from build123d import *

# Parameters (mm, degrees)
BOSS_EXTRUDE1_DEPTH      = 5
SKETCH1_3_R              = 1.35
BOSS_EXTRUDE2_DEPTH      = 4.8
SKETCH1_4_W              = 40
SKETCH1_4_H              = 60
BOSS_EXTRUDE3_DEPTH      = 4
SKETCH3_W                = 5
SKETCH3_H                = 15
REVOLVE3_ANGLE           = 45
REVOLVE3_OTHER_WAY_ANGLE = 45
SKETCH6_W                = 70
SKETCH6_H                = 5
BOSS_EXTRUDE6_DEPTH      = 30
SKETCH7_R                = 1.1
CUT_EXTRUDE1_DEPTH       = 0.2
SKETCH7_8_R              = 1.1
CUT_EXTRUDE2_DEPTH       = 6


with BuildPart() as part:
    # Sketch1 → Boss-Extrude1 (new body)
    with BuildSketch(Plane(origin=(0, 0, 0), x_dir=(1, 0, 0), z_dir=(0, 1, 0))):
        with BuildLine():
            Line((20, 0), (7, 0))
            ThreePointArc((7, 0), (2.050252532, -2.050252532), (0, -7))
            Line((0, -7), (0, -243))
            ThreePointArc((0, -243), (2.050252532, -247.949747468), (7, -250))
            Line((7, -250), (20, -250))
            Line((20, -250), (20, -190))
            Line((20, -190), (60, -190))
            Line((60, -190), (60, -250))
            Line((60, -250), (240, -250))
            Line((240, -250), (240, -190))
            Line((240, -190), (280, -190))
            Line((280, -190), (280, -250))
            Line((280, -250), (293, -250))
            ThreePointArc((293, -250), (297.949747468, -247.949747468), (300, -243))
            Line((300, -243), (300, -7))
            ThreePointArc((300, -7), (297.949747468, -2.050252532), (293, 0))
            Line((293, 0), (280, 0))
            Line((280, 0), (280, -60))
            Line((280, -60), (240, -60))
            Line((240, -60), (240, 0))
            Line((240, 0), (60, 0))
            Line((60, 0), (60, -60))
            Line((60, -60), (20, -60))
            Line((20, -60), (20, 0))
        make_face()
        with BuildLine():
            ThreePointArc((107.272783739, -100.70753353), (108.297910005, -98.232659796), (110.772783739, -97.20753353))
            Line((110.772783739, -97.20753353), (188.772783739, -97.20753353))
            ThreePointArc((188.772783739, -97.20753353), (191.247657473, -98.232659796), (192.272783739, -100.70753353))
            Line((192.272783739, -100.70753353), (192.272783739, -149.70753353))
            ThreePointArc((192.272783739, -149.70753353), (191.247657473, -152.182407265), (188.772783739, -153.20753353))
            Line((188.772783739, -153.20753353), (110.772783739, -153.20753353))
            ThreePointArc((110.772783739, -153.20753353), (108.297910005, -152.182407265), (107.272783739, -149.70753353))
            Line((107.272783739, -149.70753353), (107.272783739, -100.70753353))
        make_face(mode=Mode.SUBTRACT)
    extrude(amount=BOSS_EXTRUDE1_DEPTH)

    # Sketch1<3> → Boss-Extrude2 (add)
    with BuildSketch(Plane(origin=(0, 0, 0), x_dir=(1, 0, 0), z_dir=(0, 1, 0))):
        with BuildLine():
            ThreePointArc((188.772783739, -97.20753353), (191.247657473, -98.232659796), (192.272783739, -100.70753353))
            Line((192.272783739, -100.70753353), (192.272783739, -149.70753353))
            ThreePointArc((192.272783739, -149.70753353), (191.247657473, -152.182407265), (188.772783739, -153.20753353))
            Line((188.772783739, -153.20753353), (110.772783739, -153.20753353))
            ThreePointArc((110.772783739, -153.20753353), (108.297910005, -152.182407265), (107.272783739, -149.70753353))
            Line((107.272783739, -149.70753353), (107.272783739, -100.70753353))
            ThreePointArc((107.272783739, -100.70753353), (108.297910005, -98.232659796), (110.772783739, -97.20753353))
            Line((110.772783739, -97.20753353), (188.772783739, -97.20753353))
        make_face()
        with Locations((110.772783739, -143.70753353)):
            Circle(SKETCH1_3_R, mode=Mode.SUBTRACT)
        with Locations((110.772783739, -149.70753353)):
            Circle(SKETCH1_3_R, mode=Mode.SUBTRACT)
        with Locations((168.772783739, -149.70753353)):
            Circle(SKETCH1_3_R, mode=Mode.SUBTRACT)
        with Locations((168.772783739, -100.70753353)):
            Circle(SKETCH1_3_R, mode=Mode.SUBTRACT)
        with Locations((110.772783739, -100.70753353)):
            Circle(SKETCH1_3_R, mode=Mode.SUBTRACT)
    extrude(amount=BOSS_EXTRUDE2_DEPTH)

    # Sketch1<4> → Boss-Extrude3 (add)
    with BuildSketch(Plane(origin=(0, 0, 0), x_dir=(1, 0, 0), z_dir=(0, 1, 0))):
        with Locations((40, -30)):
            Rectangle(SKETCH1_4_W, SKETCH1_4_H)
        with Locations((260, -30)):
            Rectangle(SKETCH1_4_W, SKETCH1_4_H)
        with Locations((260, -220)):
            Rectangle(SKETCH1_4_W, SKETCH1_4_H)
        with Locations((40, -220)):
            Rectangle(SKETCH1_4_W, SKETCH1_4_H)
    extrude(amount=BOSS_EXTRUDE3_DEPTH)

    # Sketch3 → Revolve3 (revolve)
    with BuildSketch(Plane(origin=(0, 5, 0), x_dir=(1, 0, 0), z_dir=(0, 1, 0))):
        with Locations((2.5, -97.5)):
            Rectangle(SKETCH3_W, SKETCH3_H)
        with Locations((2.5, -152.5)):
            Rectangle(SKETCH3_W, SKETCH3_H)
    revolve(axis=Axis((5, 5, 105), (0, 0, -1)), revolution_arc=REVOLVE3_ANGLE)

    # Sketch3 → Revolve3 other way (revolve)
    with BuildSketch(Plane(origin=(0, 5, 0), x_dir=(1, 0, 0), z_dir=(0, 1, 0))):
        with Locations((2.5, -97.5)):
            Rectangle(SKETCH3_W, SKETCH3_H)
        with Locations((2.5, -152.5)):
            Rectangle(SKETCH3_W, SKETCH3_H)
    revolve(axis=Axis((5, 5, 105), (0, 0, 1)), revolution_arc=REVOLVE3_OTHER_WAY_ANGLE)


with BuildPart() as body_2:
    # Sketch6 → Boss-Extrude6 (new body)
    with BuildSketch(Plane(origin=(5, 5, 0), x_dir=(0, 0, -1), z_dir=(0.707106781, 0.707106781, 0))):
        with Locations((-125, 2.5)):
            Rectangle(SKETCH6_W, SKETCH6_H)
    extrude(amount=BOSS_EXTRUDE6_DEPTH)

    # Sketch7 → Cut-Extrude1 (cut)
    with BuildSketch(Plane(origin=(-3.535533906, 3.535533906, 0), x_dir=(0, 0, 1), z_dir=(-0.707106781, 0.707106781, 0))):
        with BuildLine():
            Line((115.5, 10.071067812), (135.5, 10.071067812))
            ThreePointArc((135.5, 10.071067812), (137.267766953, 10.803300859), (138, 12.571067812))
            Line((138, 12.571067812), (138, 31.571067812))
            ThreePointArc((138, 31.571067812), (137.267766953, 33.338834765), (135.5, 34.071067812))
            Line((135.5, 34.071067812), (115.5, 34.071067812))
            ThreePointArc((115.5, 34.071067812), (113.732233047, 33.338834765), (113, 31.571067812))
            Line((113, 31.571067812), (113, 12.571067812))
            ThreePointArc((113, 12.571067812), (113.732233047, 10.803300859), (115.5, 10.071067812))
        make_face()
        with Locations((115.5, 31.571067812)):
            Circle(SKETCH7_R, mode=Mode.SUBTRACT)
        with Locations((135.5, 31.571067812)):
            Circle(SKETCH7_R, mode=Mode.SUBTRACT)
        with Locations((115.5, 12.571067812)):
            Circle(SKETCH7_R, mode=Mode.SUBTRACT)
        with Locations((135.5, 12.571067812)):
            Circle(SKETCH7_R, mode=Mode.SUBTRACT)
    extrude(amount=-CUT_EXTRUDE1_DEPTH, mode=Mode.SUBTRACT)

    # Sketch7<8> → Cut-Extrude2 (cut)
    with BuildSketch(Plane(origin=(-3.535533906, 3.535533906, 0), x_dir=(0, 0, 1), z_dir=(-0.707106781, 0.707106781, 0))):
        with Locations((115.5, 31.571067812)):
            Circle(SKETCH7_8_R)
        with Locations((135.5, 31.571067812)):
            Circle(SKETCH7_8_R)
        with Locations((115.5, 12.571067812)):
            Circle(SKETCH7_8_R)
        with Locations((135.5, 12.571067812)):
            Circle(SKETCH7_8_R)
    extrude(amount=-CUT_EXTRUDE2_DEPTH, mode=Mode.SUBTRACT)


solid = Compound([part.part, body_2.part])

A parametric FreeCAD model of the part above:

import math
import FreeCAD as App
import Part
import Sketcher

V = App.Vector
Q = App.Units.Quantity

doc = App.newDocument("Part")
body = doc.addObject("PartDesign::Body", "Body")

sketch1 = body.newObject("Sketcher::SketchObject", "Sketch")
sketch1.AttachmentSupport = (doc.getObject("XZ_Plane"), [""])
sketch1.MapMode = "FlatFace"
sketch1.addGeometry([
    Part.LineSegment(V(20, 0, 0), V(7, 0, 0)),
    Part.ArcOfCircle(Part.Circle(V(7, 7, 0), V(0, 0, 1), 7), math.radians(-180), math.radians(-90)),
    Part.LineSegment(V(0, 7, 0), V(0, 243, 0)),
    Part.ArcOfCircle(Part.Circle(V(7, 243, 0), V(0, 0, 1), 7), math.radians(90), math.radians(180)),
    Part.LineSegment(V(7, 250, 0), V(20, 250, 0)),
    Part.LineSegment(V(20, 250, 0), V(20, 190, 0)),
    Part.LineSegment(V(20, 190, 0), V(60, 190, 0)),
    Part.LineSegment(V(60, 190, 0), V(60, 250, 0)),
    Part.LineSegment(V(60, 250, 0), V(240, 250, 0)),
    Part.LineSegment(V(240, 250, 0), V(240, 190, 0)),
    Part.LineSegment(V(240, 190, 0), V(280, 190, 0)),
    Part.LineSegment(V(280, 190, 0), V(280, 250, 0)),
    Part.LineSegment(V(280, 250, 0), V(293, 250, 0)),
    Part.ArcOfCircle(Part.Circle(V(293, 243, 0), V(0, 0, 1), 7), math.radians(0), math.radians(90)),
    Part.LineSegment(V(300, 243, 0), V(300, 7, 0)),
    Part.ArcOfCircle(Part.Circle(V(293, 7, 0), V(0, 0, 1), 7), math.radians(-90), math.radians(0)),
    Part.LineSegment(V(293, 0, 0), V(280, 0, 0)),
    Part.LineSegment(V(280, 0, 0), V(280, 60, 0)),
    Part.LineSegment(V(280, 60, 0), V(240, 60, 0)),
    Part.LineSegment(V(240, 60, 0), V(240, 0, 0)),
    Part.LineSegment(V(240, 0, 0), V(60, 0, 0)),
    Part.LineSegment(V(60, 0, 0), V(60, 60, 0)),
    Part.LineSegment(V(60, 60, 0), V(20, 60, 0)),
    Part.LineSegment(V(20, 60, 0), V(20, 0, 0)),
    Part.LineSegment(V(107.3, 149.7, 0), V(107.3, 100.7, 0)),
    Part.ArcOfCircle(Part.Circle(V(110.8, 100.7, 0), V(0, 0, 1), 3.5), math.radians(-180), math.radians(-90)),
    Part.LineSegment(V(110.8, 97.2, 0), V(188.8, 97.2, 0)),
    Part.ArcOfCircle(Part.Circle(V(188.8, 100.7, 0), V(0, 0, 1), 3.5), math.radians(-90), math.radians(0)),
    Part.LineSegment(V(192.3, 100.7, 0), V(192.3, 149.7, 0)),
    Part.ArcOfCircle(Part.Circle(V(188.8, 149.7, 0), V(0, 0, 1), 3.5), math.radians(0), math.radians(90)),
    Part.LineSegment(V(188.8, 153.2, 0), V(110.8, 153.2, 0)),
    Part.ArcOfCircle(Part.Circle(V(110.8, 149.7, 0), V(0, 0, 1), 3.5), math.radians(90), math.radians(180)),
], False)
sketch1.addConstraint([
    Sketcher.Constraint("Tangent", 0, 2, 1, 2),
    Sketcher.Constraint("Tangent", 1, 1, 2, 1),
    Sketcher.Constraint("Tangent", 2, 2, 3, 2),
    Sketcher.Constraint("Tangent", 3, 1, 4, 1),
    Sketcher.Constraint("Coincident", 4, 2, 5, 1),
    Sketcher.Constraint("Coincident", 5, 2, 6, 1),
    Sketcher.Constraint("Coincident", 6, 2, 7, 1),
    Sketcher.Constraint("Coincident", 7, 2, 8, 1),
    Sketcher.Constraint("Coincident", 8, 2, 9, 1),
    Sketcher.Constraint("Coincident", 9, 2, 10, 1),
    Sketcher.Constraint("Coincident", 10, 2, 11, 1),
    Sketcher.Constraint("Coincident", 11, 2, 12, 1),
    Sketcher.Constraint("Tangent", 12, 2, 13, 2),
    Sketcher.Constraint("Tangent", 13, 1, 14, 1),
    Sketcher.Constraint("Tangent", 14, 2, 15, 2),
    Sketcher.Constraint("Tangent", 15, 1, 16, 1),
    Sketcher.Constraint("Coincident", 16, 2, 17, 1),
    Sketcher.Constraint("Coincident", 17, 2, 18, 1),
    Sketcher.Constraint("Coincident", 18, 2, 19, 1),
    Sketcher.Constraint("Coincident", 19, 2, 20, 1),
    Sketcher.Constraint("Coincident", 20, 2, 21, 1),
    Sketcher.Constraint("Coincident", 21, 2, 22, 1),
    Sketcher.Constraint("Coincident", 22, 2, 23, 1),
    Sketcher.Constraint("Coincident", 23, 2, 0, 1),
    Sketcher.Constraint("Tangent", 24, 2, 25, 1),
    Sketcher.Constraint("Tangent", 25, 2, 26, 1),
    Sketcher.Constraint("Tangent", 26, 2, 27, 1),
    Sketcher.Constraint("Tangent", 27, 2, 28, 1),
    Sketcher.Constraint("Tangent", 28, 2, 29, 1),
    Sketcher.Constraint("Tangent", 29, 2, 30, 1),
    Sketcher.Constraint("Tangent", 30, 2, 31, 1),
    Sketcher.Constraint("Tangent", 31, 2, 24, 1),
    Sketcher.Constraint("Horizontal", 0),
    Sketcher.Constraint("Vertical", 2),
    Sketcher.Constraint("Horizontal", 4),
    Sketcher.Constraint("Vertical", 5),
    Sketcher.Constraint("Horizontal", 6),
    Sketcher.Constraint("Vertical", 7),
    Sketcher.Constraint("Horizontal", 8),
    Sketcher.Constraint("Vertical", 9),
    Sketcher.Constraint("Horizontal", 10),
    Sketcher.Constraint("Vertical", 11),
    Sketcher.Constraint("Horizontal", 12),
    Sketcher.Constraint("Vertical", 14),
    Sketcher.Constraint("Horizontal", 16),
    Sketcher.Constraint("Vertical", 17),
    Sketcher.Constraint("Horizontal", 18),
    Sketcher.Constraint("Vertical", 19),
    Sketcher.Constraint("Horizontal", 20),
    Sketcher.Constraint("Vertical", 21),
    Sketcher.Constraint("Horizontal", 22),
    Sketcher.Constraint("Vertical", 23),
    Sketcher.Constraint("Vertical", 24),
    Sketcher.Constraint("Horizontal", 26),
    Sketcher.Constraint("Vertical", 28),
    Sketcher.Constraint("Horizontal", 30),
    Sketcher.Constraint("Equal", 1, 3),
    Sketcher.Constraint("Equal", 3, 13),
    Sketcher.Constraint("Equal", 13, 15),
    Sketcher.Constraint("Equal", 25, 27),
    Sketcher.Constraint("Equal", 27, 29),
    Sketcher.Constraint("Equal", 29, 31),
    Sketcher.Constraint("PointOnObject", 0, 2, -1),
    Sketcher.Constraint("PointOnObject", 1, 1, -2),
    Sketcher.Constraint("PointOnObject", 15, 1, -1),
    Sketcher.Constraint("PointOnObject", 19, 2, -1),
    Sketcher.Constraint("Horizontal", 3, 3, 13, 3),
    Sketcher.Constraint("Horizontal", 4, 2, 7, 2),
    Sketcher.Constraint("Horizontal", 6, 2, 9, 2),
    Sketcher.Constraint("Horizontal", 18, 2, 21, 2),
    Sketcher.Constraint("Vertical", 11, 2, 16, 2),
    Sketcher.Constraint("Vertical", 9, 2, 18, 2),
    Sketcher.Constraint("Vertical", 7, 2, 20, 2),
    Sketcher.Constraint("Vertical", 5, 2, 22, 2),
    Sketcher.Constraint("Equal", 6, 10),
    Sketcher.Constraint("Equal", 4, 12),
    Sketcher.Constraint("Equal", 11, 17),
    Sketcher.Constraint("Radius", 1, Q("7 mm")),
    Sketcher.Constraint("Radius", 25, Q("3.5 mm")),
    Sketcher.Constraint("DistanceX", 0, 2, 0, 1, Q("13 mm")),
    Sketcher.Constraint("DistanceX", 6, 1, 6, 2, Q("40 mm")),
    Sketcher.Constraint("DistanceX", 8, 1, 8, 2, Q("180 mm")),
    Sketcher.Constraint("DistanceX", 26, 1, 26, 2, Q("78 mm")),
    Sketcher.Constraint("DistanceY", 2, 1, 2, 2, Q("236 mm")),
    Sketcher.Constraint("DistanceY", 5, 2, 5, 1, Q("60 mm")),
    Sketcher.Constraint("DistanceY", 24, 2, 24, 1, Q("49 mm")),
    Sketcher.Constraint("DistanceX", -1, 1, 25, 3, Q("110.772784 mm")),
    Sketcher.Constraint("DistanceY", -1, 1, 25, 3, Q("100.707534 mm")),
])
pad1 = body.newObject("PartDesign::Pad", "Pad")
pad1.Profile = sketch1
pad1.Length = 5
pad1.Reversed = True

sketch2 = body.newObject("Sketcher::SketchObject", "Sketch001")
sketch2.AttachmentSupport = (doc.getObject("XZ_Plane"), [""])
sketch2.MapMode = "FlatFace"
sketch2.addGeometry([
    Part.ArcOfCircle(Part.Circle(V(188.8, 100.7, 0), V(0, 0, 1), 3.5), math.radians(-90), math.radians(0)),
    Part.LineSegment(V(188.8, 97.2, 0), V(110.8, 97.2, 0)),
    Part.ArcOfCircle(Part.Circle(V(110.8, 100.7, 0), V(0, 0, 1), 3.5), math.radians(-180), math.radians(-90)),
    Part.LineSegment(V(107.3, 100.7, 0), V(107.3, 149.7, 0)),
    Part.ArcOfCircle(Part.Circle(V(110.8, 149.7, 0), V(0, 0, 1), 3.5), math.radians(90), math.radians(180)),
    Part.LineSegment(V(110.8, 153.2, 0), V(188.8, 153.2, 0)),
    Part.ArcOfCircle(Part.Circle(V(188.8, 149.7, 0), V(0, 0, 1), 3.5), math.radians(0), math.radians(90)),
    Part.LineSegment(V(192.3, 149.7, 0), V(192.3, 100.7, 0)),
    Part.Circle(V(168.8, 149.7, 0), V(0, 0, 1), 1.4),
    Part.Circle(V(110.8, 149.7, 0), V(0, 0, 1), 1.4),
    Part.Circle(V(110.8, 143.7, 0), V(0, 0, 1), 1.4),
    Part.Circle(V(168.8, 100.7, 0), V(0, 0, 1), 1.4),
    Part.Circle(V(110.8, 100.7, 0), V(0, 0, 1), 1.4),
], False)
sketch2.addConstraint([
    Sketcher.Constraint("Tangent", 0, 1, 1, 1),
    Sketcher.Constraint("Tangent", 1, 2, 2, 2),
    Sketcher.Constraint("Tangent", 2, 1, 3, 1),
    Sketcher.Constraint("Tangent", 3, 2, 4, 2),
    Sketcher.Constraint("Tangent", 4, 1, 5, 1),
    Sketcher.Constraint("Tangent", 5, 2, 6, 2),
    Sketcher.Constraint("Tangent", 6, 1, 7, 1),
    Sketcher.Constraint("Tangent", 7, 2, 0, 2),
    Sketcher.Constraint("Horizontal", 1),
    Sketcher.Constraint("Vertical", 3),
    Sketcher.Constraint("Horizontal", 5),
    Sketcher.Constraint("Vertical", 7),
    Sketcher.Constraint("Coincident", 9, 3, 4, 3),
    Sketcher.Constraint("Coincident", 12, 3, 2, 3),
    Sketcher.Constraint("Equal", 0, 2),
    Sketcher.Constraint("Equal", 2, 4),
    Sketcher.Constraint("Equal", 4, 6),
    Sketcher.Constraint("Equal", 8, 9),
    Sketcher.Constraint("Equal", 9, 10),
    Sketcher.Constraint("Equal", 10, 11),
    Sketcher.Constraint("Equal", 11, 12),
    Sketcher.Constraint("Horizontal", 6, 3, 8, 3),
    Sketcher.Constraint("Horizontal", 2, 3, 11, 3),
    Sketcher.Constraint("Vertical", 9, 3, 10, 3),
    Sketcher.Constraint("Vertical", 8, 3, 11, 3),
    Sketcher.Constraint("Diameter", 8, Q("2.7 mm")),
    Sketcher.Constraint("Radius", 0, Q("3.5 mm")),
    Sketcher.Constraint("DistanceX", 1, 2, 1, 1, Q("78 mm")),
    Sketcher.Constraint("DistanceY", 3, 1, 3, 2, Q("49 mm")),
    Sketcher.Constraint("DistanceX", 8, 3, 6, 3, Q("20 mm")),
    Sketcher.Constraint("DistanceY", 10, 3, 9, 3, Q("6 mm")),
    Sketcher.Constraint("DistanceX", -1, 1, 0, 3, Q("188.772784 mm")),
    Sketcher.Constraint("DistanceY", -1, 1, 0, 3, Q("100.707534 mm")),
])
pad2 = body.newObject("PartDesign::Pad", "Pad001")
pad2.Profile = sketch2
pad2.Length = 4.8
pad2.Reversed = True

sketch3 = body.newObject("Sketcher::SketchObject", "Sketch002")
sketch3.AttachmentSupport = (doc.getObject("XZ_Plane"), [""])
sketch3.MapMode = "FlatFace"
sketch3.addGeometry([
    Part.LineSegment(V(20, 0, 0), V(20, 60, 0)),
    Part.LineSegment(V(20, 60, 0), V(60, 60, 0)),
    Part.LineSegment(V(60, 60, 0), V(60, 0, 0)),
    Part.LineSegment(V(60, 0, 0), V(20, 0, 0)),
    Part.LineSegment(V(240, 0, 0), V(240, 60, 0)),
    Part.LineSegment(V(240, 60, 0), V(280, 60, 0)),
    Part.LineSegment(V(280, 60, 0), V(280, 0, 0)),
    Part.LineSegment(V(280, 0, 0), V(240, 0, 0)),
    Part.LineSegment(V(240, 190, 0), V(240, 250, 0)),
    Part.LineSegment(V(240, 250, 0), V(280, 250, 0)),
    Part.LineSegment(V(280, 250, 0), V(280, 190, 0)),
    Part.LineSegment(V(280, 190, 0), V(240, 190, 0)),
    Part.LineSegment(V(20, 190, 0), V(20, 250, 0)),
    Part.LineSegment(V(20, 250, 0), V(60, 250, 0)),
    Part.LineSegment(V(60, 250, 0), V(60, 190, 0)),
    Part.LineSegment(V(60, 190, 0), V(20, 190, 0)),
], False)
sketch3.addConstraint([
    Sketcher.Constraint("Coincident", 0, 2, 1, 1),
    Sketcher.Constraint("Coincident", 1, 2, 2, 1),
    Sketcher.Constraint("Coincident", 2, 2, 3, 1),
    Sketcher.Constraint("Coincident", 3, 2, 0, 1),
    Sketcher.Constraint("Coincident", 4, 2, 5, 1),
    Sketcher.Constraint("Coincident", 5, 2, 6, 1),
    Sketcher.Constraint("Coincident", 6, 2, 7, 1),
    Sketcher.Constraint("Coincident", 7, 2, 4, 1),
    Sketcher.Constraint("Coincident", 8, 2, 9, 1),
    Sketcher.Constraint("Coincident", 9, 2, 10, 1),
    Sketcher.Constraint("Coincident", 10, 2, 11, 1),
    Sketcher.Constraint("Coincident", 11, 2, 8, 1),
    Sketcher.Constraint("Coincident", 12, 2, 13, 1),
    Sketcher.Constraint("Coincident", 13, 2, 14, 1),
    Sketcher.Constraint("Coincident", 14, 2, 15, 1),
    Sketcher.Constraint("Coincident", 15, 2, 12, 1),
    Sketcher.Constraint("Vertical", 0),
    Sketcher.Constraint("Horizontal", 1),
    Sketcher.Constraint("Vertical", 2),
    Sketcher.Constraint("Horizontal", 3),
    Sketcher.Constraint("Vertical", 4),
    Sketcher.Constraint("Horizontal", 5),
    Sketcher.Constraint("Vertical", 6),
    Sketcher.Constraint("Horizontal", 7),
    Sketcher.Constraint("Vertical", 8),
    Sketcher.Constraint("Horizontal", 9),
    Sketcher.Constraint("Vertical", 10),
    Sketcher.Constraint("Horizontal", 11),
    Sketcher.Constraint("Vertical", 12),
    Sketcher.Constraint("Horizontal", 13),
    Sketcher.Constraint("Vertical", 14),
    Sketcher.Constraint("Horizontal", 15),
    Sketcher.Constraint("PointOnObject", 2, 2, -1),
    Sketcher.Constraint("PointOnObject", 6, 2, -1),
    Sketcher.Constraint("Horizontal", 1, 2, 4, 2),
    Sketcher.Constraint("Horizontal", 9, 2, 12, 2),
    Sketcher.Constraint("Horizontal", 11, 2, 14, 2),
    Sketcher.Constraint("Vertical", 7, 2, 8, 2),
    Sketcher.Constraint("Vertical", 6, 2, 9, 2),
    Sketcher.Constraint("Vertical", 3, 2, 12, 2),
    Sketcher.Constraint("Vertical", 2, 2, 13, 2),
    Sketcher.Constraint("Equal", 3, 5),
    Sketcher.Constraint("Equal", 6, 8),
    Sketcher.Constraint("DistanceX", 1, 1, 1, 2, Q("40 mm")),
    Sketcher.Constraint("DistanceY", 0, 1, 0, 2, Q("60 mm")),
    Sketcher.Constraint("DistanceX", -1, 1, 0, 2, Q("20 mm")),
    Sketcher.Constraint("DistanceX", -1, 1, 4, 2, Q("240 mm")),
    Sketcher.Constraint("DistanceY", -1, 1, 8, 2, Q("250 mm")),
])
pad3 = body.newObject("PartDesign::Pad", "Pad002")
pad3.Profile = sketch3
pad3.Length = 4
pad3.Reversed = True

sketch4 = body.newObject("Sketcher::SketchObject", "Sketch003")
sketch4.AttachmentSupport = (doc.getObject("XZ_Plane"), [""])
sketch4.MapMode = "FlatFace"
sketch4.AttachmentOffset = App.Placement(V(0, 0, -5), App.Rotation())
sketch4.addGeometry([
    Part.LineSegment(V(0, 90, 0), V(0, 105, 0)),
    Part.LineSegment(V(0, 105, 0), V(5, 105, 0)),
    Part.LineSegment(V(5, 105, 0), V(5, 90, 0)),
    Part.LineSegment(V(5, 90, 0), V(0, 90, 0)),
    Part.LineSegment(V(0, 145, 0), V(0, 160, 0)),
    Part.LineSegment(V(0, 160, 0), V(5, 160, 0)),
    Part.LineSegment(V(5, 160, 0), V(5, 145, 0)),
    Part.LineSegment(V(5, 145, 0), V(0, 145, 0)),
], False)
sketch4.addGeometry(Part.LineSegment(V(5, 160, 0), V(5, 90, 0)), True)
sketch4.addConstraint([
    Sketcher.Constraint("Coincident", 0, 2, 1, 1),
    Sketcher.Constraint("Coincident", 1, 2, 2, 1),
    Sketcher.Constraint("Coincident", 2, 2, 3, 1),
    Sketcher.Constraint("Coincident", 3, 2, 0, 1),
    Sketcher.Constraint("Coincident", 4, 2, 5, 1),
    Sketcher.Constraint("Coincident", 5, 2, 6, 1),
    Sketcher.Constraint("Coincident", 6, 2, 7, 1),
    Sketcher.Constraint("Coincident", 7, 2, 4, 1),
    Sketcher.Constraint("Vertical", 0),
    Sketcher.Constraint("Horizontal", 1),
    Sketcher.Constraint("Vertical", 2),
    Sketcher.Constraint("Horizontal", 3),
    Sketcher.Constraint("Vertical", 4),
    Sketcher.Constraint("Horizontal", 5),
    Sketcher.Constraint("Vertical", 6),
    Sketcher.Constraint("Horizontal", 7),
    Sketcher.Constraint("Vertical", 8),
    Sketcher.Constraint("Coincident", 8, 1, 5, 2),
    Sketcher.Constraint("Coincident", 8, 2, 2, 2),
    Sketcher.Constraint("PointOnObject", 0, 2, -2),
    Sketcher.Constraint("PointOnObject", 4, 2, -2),
    Sketcher.Constraint("Equal", 2, 4),
    Sketcher.Constraint("DistanceX", 1, 1, 1, 2, Q("5 mm")),
    Sketcher.Constraint("DistanceY", 0, 1, 0, 2, Q("15 mm")),
    Sketcher.Constraint("DistanceY", 8, 2, 8, 1, Q("70 mm")),
    Sketcher.Constraint("DistanceY", -1, 1, 0, 2, Q("105 mm")),
])
revolution = body.newObject("PartDesign::Revolution", "Revolution")
revolution.Profile = sketch4
revolution.ReferenceAxis = (sketch4, ["Axis0"])
revolution.Angle = 45

sketch5 = body.newObject("Sketcher::SketchObject", "Sketch004")
sketch5.AttachmentSupport = (doc.getObject("XZ_Plane"), [""])
sketch5.MapMode = "FlatFace"
sketch5.AttachmentOffset = App.Placement(V(0, 0, -5), App.Rotation())
sketch5.addGeometry([
    Part.LineSegment(V(0, 90, 0), V(0, 105, 0)),
    Part.LineSegment(V(0, 105, 0), V(5, 105, 0)),
    Part.LineSegment(V(5, 105, 0), V(5, 90, 0)),
    Part.LineSegment(V(5, 90, 0), V(0, 90, 0)),
    Part.LineSegment(V(0, 145, 0), V(0, 160, 0)),
    Part.LineSegment(V(0, 160, 0), V(5, 160, 0)),
    Part.LineSegment(V(5, 160, 0), V(5, 145, 0)),
    Part.LineSegment(V(5, 145, 0), V(0, 145, 0)),
], False)
sketch5.addGeometry(Part.LineSegment(V(5, 90, 0), V(5, 160, 0)), True)
sketch5.addConstraint([
    Sketcher.Constraint("Coincident", 0, 2, 1, 1),
    Sketcher.Constraint("Coincident", 1, 2, 2, 1),
    Sketcher.Constraint("Coincident", 2, 2, 3, 1),
    Sketcher.Constraint("Coincident", 3, 2, 0, 1),
    Sketcher.Constraint("Coincident", 4, 2, 5, 1),
    Sketcher.Constraint("Coincident", 5, 2, 6, 1),
    Sketcher.Constraint("Coincident", 6, 2, 7, 1),
    Sketcher.Constraint("Coincident", 7, 2, 4, 1),
    Sketcher.Constraint("Vertical", 0),
    Sketcher.Constraint("Horizontal", 1),
    Sketcher.Constraint("Vertical", 2),
    Sketcher.Constraint("Horizontal", 3),
    Sketcher.Constraint("Vertical", 4),
    Sketcher.Constraint("Horizontal", 5),
    Sketcher.Constraint("Vertical", 6),
    Sketcher.Constraint("Horizontal", 7),
    Sketcher.Constraint("Vertical", 8),
    Sketcher.Constraint("Coincident", 8, 1, 2, 2),
    Sketcher.Constraint("Coincident", 8, 2, 5, 2),
    Sketcher.Constraint("PointOnObject", 0, 2, -2),
    Sketcher.Constraint("PointOnObject", 4, 2, -2),
    Sketcher.Constraint("Equal", 2, 4),
    Sketcher.Constraint("DistanceX", 1, 1, 1, 2, Q("5 mm")),
    Sketcher.Constraint("DistanceY", 0, 1, 0, 2, Q("15 mm")),
    Sketcher.Constraint("DistanceY", 8, 1, 8, 2, Q("70 mm")),
    Sketcher.Constraint("DistanceY", -1, 1, 0, 2, Q("105 mm")),
])
revolution2 = body.newObject("PartDesign::Revolution", "Revolution001")
revolution2.Profile = sketch5
revolution2.ReferenceAxis = (sketch5, ["Axis0"])
revolution2.Angle = 45
body2 = doc.addObject("PartDesign::Body", "Body001")

sketch6 = body2.newObject("Sketcher::SketchObject", "Sketch005")
sketch6.Placement = App.Placement(V(5, 5, 0), App.Rotation(V(0, 0, -1), V(-0.707106781, 0.707106781, 0), V(0.707106781, 0.707106781, 0), "ZXY"))
sketch6.addGeometry([
    Part.LineSegment(V(-160, 5, 0), V(-160, 0, 0)),
    Part.LineSegment(V(-160, 0, 0), V(-90, 0, 0)),
    Part.LineSegment(V(-90, 0, 0), V(-90, 5, 0)),
    Part.LineSegment(V(-90, 5, 0), V(-160, 5, 0)),
], False)
sketch6.addConstraint([
    Sketcher.Constraint("Coincident", 0, 2, 1, 1),
    Sketcher.Constraint("Coincident", 1, 2, 2, 1),
    Sketcher.Constraint("Coincident", 2, 2, 3, 1),
    Sketcher.Constraint("Coincident", 3, 2, 0, 1),
    Sketcher.Constraint("Vertical", 0),
    Sketcher.Constraint("Horizontal", 1),
    Sketcher.Constraint("Vertical", 2),
    Sketcher.Constraint("Horizontal", 3),
    Sketcher.Constraint("PointOnObject", 0, 2, -1),
    Sketcher.Constraint("DistanceX", 1, 1, 1, 2, Q("70 mm")),
    Sketcher.Constraint("DistanceY", 0, 2, 0, 1, Q("5 mm")),
    Sketcher.Constraint("DistanceX", 0, 2, -1, 1, Q("160 mm")),
])
pad4 = body2.newObject("PartDesign::Pad", "Pad003")
pad4.Profile = sketch6
pad4.Length = 30

sketch7 = body2.newObject("Sketcher::SketchObject", "Sketch006")
sketch7.Placement = App.Placement(V(-3.535534, 3.535534, 0), App.Rotation(V(0, 0, 1), V(0.707106781, 0.707106781, 0), V(-0.707106781, 0.707106781, 0), "ZXY"))
sketch7.addGeometry([
    Part.LineSegment(V(115.5, 10.1, 0), V(135.5, 10.1, 0)),
    Part.ArcOfCircle(Part.Circle(V(135.5, 12.6, 0), V(0, 0, 1), 2.5), math.radians(-90), math.radians(0)),
    Part.LineSegment(V(138, 12.6, 0), V(138, 31.6, 0)),
    Part.ArcOfCircle(Part.Circle(V(135.5, 31.6, 0), V(0, 0, 1), 2.5), math.radians(0), math.radians(90)),
    Part.LineSegment(V(135.5, 34.1, 0), V(115.5, 34.1, 0)),
    Part.ArcOfCircle(Part.Circle(V(115.5, 31.6, 0), V(0, 0, 1), 2.5), math.radians(90), math.radians(180)),
    Part.LineSegment(V(113, 31.6, 0), V(113, 12.6, 0)),
    Part.ArcOfCircle(Part.Circle(V(115.5, 12.6, 0), V(0, 0, 1), 2.5), math.radians(180), math.radians(270)),
    Part.Circle(V(115.5, 12.6, 0), V(0, 0, 1), 1.1),
    Part.Circle(V(135.5, 12.6, 0), V(0, 0, 1), 1.1),
    Part.Circle(V(115.5, 31.6, 0), V(0, 0, 1), 1.1),
    Part.Circle(V(135.5, 31.6, 0), V(0, 0, 1), 1.1),
], False)
sketch7.addConstraint([
    Sketcher.Constraint("Tangent", 0, 2, 1, 1),
    Sketcher.Constraint("Tangent", 1, 2, 2, 1),
    Sketcher.Constraint("Tangent", 2, 2, 3, 1),
    Sketcher.Constraint("Tangent", 3, 2, 4, 1),
    Sketcher.Constraint("Tangent", 4, 2, 5, 1),
    Sketcher.Constraint("Tangent", 5, 2, 6, 1),
    Sketcher.Constraint("Tangent", 6, 2, 7, 1),
    Sketcher.Constraint("Tangent", 7, 2, 0, 1),
    Sketcher.Constraint("Horizontal", 0),
    Sketcher.Constraint("Vertical", 2),
    Sketcher.Constraint("Horizontal", 4),
    Sketcher.Constraint("Vertical", 6),
    Sketcher.Constraint("Coincident", 8, 3, 7, 3),
    Sketcher.Constraint("Coincident", 9, 3, 1, 3),
    Sketcher.Constraint("Coincident", 10, 3, 5, 3),
    Sketcher.Constraint("Coincident", 11, 3, 3, 3),
    Sketcher.Constraint("Equal", 1, 3),
    Sketcher.Constraint("Equal", 3, 5),
    Sketcher.Constraint("Equal", 5, 7),
    Sketcher.Constraint("Equal", 8, 9),
    Sketcher.Constraint("Equal", 9, 10),
    Sketcher.Constraint("Equal", 10, 11),
    Sketcher.Constraint("Diameter", 8, Q("2.2 mm")),
    Sketcher.Constraint("Radius", 1, Q("2.5 mm")),
    Sketcher.Constraint("DistanceX", 0, 1, 0, 2, Q("20 mm")),
    Sketcher.Constraint("DistanceY", 2, 1, 2, 2, Q("19 mm")),
    Sketcher.Constraint("DistanceX", -1, 1, 1, 2, Q("138 mm")),
    Sketcher.Constraint("DistanceY", -1, 1, 1, 3, Q("12.571068 mm")),
])
pocket1 = body2.newObject("PartDesign::Pocket", "Pocket")
pocket1.Profile = sketch7
pocket1.Length = 0.2

sketch8 = body2.newObject("Sketcher::SketchObject", "Sketch007")
sketch8.Placement = App.Placement(V(-3.535534, 3.535534, 0), App.Rotation(V(0, 0, 1), V(0.707106781, 0.707106781, 0), V(-0.707106781, 0.707106781, 0), "ZXY"))
sketch8.addGeometry([
    Part.Circle(V(115.5, 31.6, 0), V(0, 0, 1), 1.1),
    Part.Circle(V(135.5, 31.6, 0), V(0, 0, 1), 1.1),
    Part.Circle(V(115.5, 12.6, 0), V(0, 0, 1), 1.1),
    Part.Circle(V(135.5, 12.6, 0), V(0, 0, 1), 1.1),
], False)
sketch8.addConstraint([
    Sketcher.Constraint("Equal", 0, 1),
    Sketcher.Constraint("Equal", 1, 2),
    Sketcher.Constraint("Equal", 2, 3),
    Sketcher.Constraint("Horizontal", 0, 3, 1, 3),
    Sketcher.Constraint("Horizontal", 2, 3, 3, 3),
    Sketcher.Constraint("Vertical", 0, 3, 2, 3),
    Sketcher.Constraint("Vertical", 1, 3, 3, 3),
    Sketcher.Constraint("Diameter", 0, Q("2.2 mm")),
    Sketcher.Constraint("DistanceX", 0, 3, 1, 3, Q("20 mm")),
    Sketcher.Constraint("DistanceY", 2, 3, 0, 3, Q("19 mm")),
    Sketcher.Constraint("DistanceX", -1, 1, 0, 3, Q("115.5 mm")),
    Sketcher.Constraint("DistanceY", -1, 1, 0, 3, Q("31.571068 mm")),
])
pocket2 = body2.newObject("PartDesign::Pocket", "Pocket001")
pocket2.Profile = sketch8
pocket2.Length = 6

doc.recompute()
